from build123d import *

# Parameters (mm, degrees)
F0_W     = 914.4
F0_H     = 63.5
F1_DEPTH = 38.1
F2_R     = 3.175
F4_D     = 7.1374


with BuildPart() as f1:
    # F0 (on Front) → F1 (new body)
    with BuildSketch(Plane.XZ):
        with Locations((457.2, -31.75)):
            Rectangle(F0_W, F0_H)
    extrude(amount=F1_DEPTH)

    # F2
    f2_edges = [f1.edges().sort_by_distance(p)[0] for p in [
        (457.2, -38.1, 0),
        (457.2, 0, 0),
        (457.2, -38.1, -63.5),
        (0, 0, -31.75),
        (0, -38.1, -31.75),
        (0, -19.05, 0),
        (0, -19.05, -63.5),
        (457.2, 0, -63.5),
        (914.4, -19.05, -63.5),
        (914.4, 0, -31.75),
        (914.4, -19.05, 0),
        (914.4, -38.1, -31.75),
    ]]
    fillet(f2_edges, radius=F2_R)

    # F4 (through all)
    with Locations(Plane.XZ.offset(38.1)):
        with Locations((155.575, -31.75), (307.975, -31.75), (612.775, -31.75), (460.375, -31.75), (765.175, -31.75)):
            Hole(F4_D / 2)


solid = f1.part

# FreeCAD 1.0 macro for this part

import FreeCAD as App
import Part
import Sketcher
Q = App.Units.Quantity

doc = App.newDocument("Part")
body = doc.addObject("PartDesign::Body", "Body")

# Sketch on XZ plane
sketch1 = body.newObject("Sketcher::SketchObject", "Sketch")
sketch1.AttachmentSupport = (doc.getObject("XZ_Plane"), [""])
sketch1.MapMode = "FlatFace"
sketch1.addGeometry(Part.LineSegment(App.Vector(0, 0, 0), App.Vector(0, -64, 0)), False)
sketch1.addGeometry(Part.LineSegment(App.Vector(0, -64, 0), App.Vector(914, -64, 0)), False)
sketch1.addGeometry(Part.LineSegment(App.Vector(914, -64, 0), App.Vector(914, 0, 0)), False)
sketch1.addGeometry(Part.LineSegment(App.Vector(914, 0, 0), App.Vector(0, 0, 0)), False)
sketch1.addConstraint(Sketcher.Constraint("Coincident", 0, 2, 1, 1))
sketch1.addConstraint(Sketcher.Constraint("Coincident", 1, 2, 2, 1))
sketch1.addConstraint(Sketcher.Constraint("Coincident", 2, 2, 3, 1))
sketch1.addConstraint(Sketcher.Constraint("Coincident", 3, 2, 0, 1))
sketch1.addConstraint(Sketcher.Constraint("Vertical", 0))
sketch1.addConstraint(Sketcher.Constraint("Horizontal", 1))
sketch1.addConstraint(Sketcher.Constraint("Vertical", 2))
sketch1.addConstraint(Sketcher.Constraint("Horizontal", 3))
sketch1.addConstraint(Sketcher.Constraint("Coincident", 3, 2, -1, 1))
sketch1.addConstraint(Sketcher.Constraint("DistanceX", 1, 1, 1, 2, Q("36 in")))
sketch1.addConstraint(Sketcher.Constraint("DistanceY", 0, 2, 0, 1, Q("2.5 in")))
pad1 = body.newObject("PartDesign::Pad", "Pad")
pad1.Profile = sketch1
pad1.Length = Q("1.5 in")
doc.recompute()

fillet = body.newObject("PartDesign::Fillet", "Fillet")
fillet.Base = (pad1, ["Edge1"])
fillet.UseAllEdges = True
fillet.Radius = Q("0.125 in")

# Sketch on XZ plane
sketch2 = body.newObject("Sketcher::SketchObject", "Sketch001")
sketch2.AttachmentSupport = (doc.getObject("XZ_Plane"), [""])
sketch2.MapMode = "FlatFace"
sketch2.AttachmentOffset = App.Placement(App.Vector(0, 0, 1.5 * 25.4), App.Rotation())
sketch2.addGeometry(Part.Circle(App.Vector(155.6, -31.8, 0), App.Vector(0, 0, 1), 3.6), False)
sketch2.addGeometry(Part.Circle(App.Vector(308, -31.8, 0), App.Vector(0, 0, 1), 3.6), False)
sketch2.addGeometry(Part.Circle(App.Vector(612.8, -31.8, 0), App.Vector(0, 0, 1), 3.6), False)
sketch2.addGeometry(Part.Circle(App.Vector(460.4, -31.8, 0), App.Vector(0, 0, 1), 3.6), False)
sketch2.addGeometry(Part.Circle(App.Vector(765.2, -31.8, 0), App.Vector(0, 0, 1), 3.6), False)
sketch2.addConstraint(Sketcher.Constraint("Equal", 0, 1))
sketch2.addConstraint(Sketcher.Constraint("Equal", 1, 2))
sketch2.addConstraint(Sketcher.Constraint("Equal", 2, 3))
sketch2.addConstraint(Sketcher.Constraint("Equal", 3, 4))
sketch2.addConstraint(Sketcher.Constraint("Horizontal", 0, 3, 1, 3))
sketch2.addConstraint(Sketcher.Constraint("Horizontal", 1, 3, 2, 3))
sketch2.addConstraint(Sketcher.Constraint("Horizontal", 2, 3, 3, 3))
sketch2.addConstraint(Sketcher.Constraint("Horizontal", 3, 3, 4, 3))
sketch2.addConstraint(Sketcher.Constraint("Diameter", 0, Q("0.281 in")))
sketch2.addConstraint(Sketcher.Constraint("DistanceX", 0, 3, 1, 3, Q("6 in")))
sketch2.addConstraint(Sketcher.Constraint("DistanceX", 1, 3, 2, 3, Q("12 in")))
sketch2.addConstraint(Sketcher.Constraint("DistanceX", 1, 3, 3, 3, Q("6 in")))
sketch2.addConstraint(Sketcher.Constraint("DistanceX", 2, 3, 4, 3, Q("6 in")))
sketch2.addConstraint(Sketcher.Constraint("DistanceY", 0, 3, -1, 1, Q("1.25 in")))
sketch2.addConstraint(Sketcher.Constraint("DistanceX", -1, 1, 0, 3, Q("6.125 in")))
doc.recompute()
hole = body.newObject("PartDesign::Hole", "Hole")
hole.Profile = sketch2
hole.ThreadType = "None"
hole.Diameter = Q("0.281 in")
hole.DepthType = "ThroughAll"

doc.recompute()
